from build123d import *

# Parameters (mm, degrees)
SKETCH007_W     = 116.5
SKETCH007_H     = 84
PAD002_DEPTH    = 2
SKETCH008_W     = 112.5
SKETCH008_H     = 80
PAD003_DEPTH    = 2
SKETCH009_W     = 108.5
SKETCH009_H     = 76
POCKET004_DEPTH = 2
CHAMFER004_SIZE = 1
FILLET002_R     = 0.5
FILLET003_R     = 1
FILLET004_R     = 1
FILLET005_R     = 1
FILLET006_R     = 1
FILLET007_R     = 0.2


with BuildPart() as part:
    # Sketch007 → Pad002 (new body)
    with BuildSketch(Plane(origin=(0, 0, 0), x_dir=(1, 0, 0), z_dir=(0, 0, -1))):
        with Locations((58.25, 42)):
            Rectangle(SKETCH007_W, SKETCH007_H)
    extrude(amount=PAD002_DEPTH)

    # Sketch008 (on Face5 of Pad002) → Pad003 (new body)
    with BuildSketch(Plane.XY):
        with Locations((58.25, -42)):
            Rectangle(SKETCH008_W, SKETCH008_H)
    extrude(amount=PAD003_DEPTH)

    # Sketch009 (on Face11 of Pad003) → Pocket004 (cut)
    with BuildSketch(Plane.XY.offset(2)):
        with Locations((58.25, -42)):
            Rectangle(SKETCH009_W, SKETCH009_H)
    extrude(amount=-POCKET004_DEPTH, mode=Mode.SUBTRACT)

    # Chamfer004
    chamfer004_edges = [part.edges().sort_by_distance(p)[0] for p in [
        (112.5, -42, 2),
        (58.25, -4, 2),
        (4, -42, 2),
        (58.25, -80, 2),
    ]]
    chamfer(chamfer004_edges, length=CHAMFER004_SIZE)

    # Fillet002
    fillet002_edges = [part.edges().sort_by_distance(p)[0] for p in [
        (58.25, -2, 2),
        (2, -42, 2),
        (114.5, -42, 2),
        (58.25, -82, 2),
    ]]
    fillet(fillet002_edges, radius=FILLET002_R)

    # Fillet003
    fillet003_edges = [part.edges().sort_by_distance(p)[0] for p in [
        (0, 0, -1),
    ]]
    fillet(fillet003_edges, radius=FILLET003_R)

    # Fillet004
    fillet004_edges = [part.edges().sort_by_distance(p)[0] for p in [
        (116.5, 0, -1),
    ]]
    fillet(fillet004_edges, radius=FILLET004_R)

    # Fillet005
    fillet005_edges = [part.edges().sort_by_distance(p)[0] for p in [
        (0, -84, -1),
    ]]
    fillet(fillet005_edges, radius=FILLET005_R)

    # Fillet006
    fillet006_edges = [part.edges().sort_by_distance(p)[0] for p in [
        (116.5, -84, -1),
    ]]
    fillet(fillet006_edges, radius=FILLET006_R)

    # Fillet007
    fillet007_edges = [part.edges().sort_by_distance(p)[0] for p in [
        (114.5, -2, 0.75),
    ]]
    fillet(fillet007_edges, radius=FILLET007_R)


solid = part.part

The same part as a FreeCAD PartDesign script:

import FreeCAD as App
import Part
import Sketcher

V = App.Vector
Q = App.Units.Quantity


def edges_at(feature, points):
    """Names of the edges that pass closest to the given points."""
    edges = feature.Shape.Edges
    near = lambda p: min(range(len(edges)), key=lambda i: edges[i].distToShape(Part.Vertex(*p))[0])
    return sorted({f"Edge{near(p) + 1}" for p in points})

doc = App.newDocument("Part")
body = doc.addObject("PartDesign::Body", "Body")

# Sketch on XY plane
sketch1 = doc.addObject("Sketcher::SketchObject", "Sketch")
body.addObject(sketch1)
sketch1.AttachmentSupport = (doc.XY_Plane, [""])
sketch1.MapMode = "FlatFace"
sketch1.addGeometry([
    Part.LineSegment(V(0, -84, 0), V(0, 0, 0)),
    Part.LineSegment(V(0, 0, 0), V(116.5, 0, 0)),
    Part.LineSegment(V(116.5, 0, 0), V(116.5, -84, 0)),
    Part.LineSegment(V(116.5, -84, 0), V(0, -84, 0)),
], False)
sketch1.addConstraint([
    Sketcher.Constraint("Coincident", 0, 2, 1, 1),
    Sketcher.Constraint("Coincident", 1, 2, 2, 1),
    Sketcher.Constraint("Coincident", 2, 2, 3, 1),
    Sketcher.Constraint("Coincident", 3, 2, 0, 1),
    Sketcher.Constraint("Vertical", 0),
    Sketcher.Constraint("Horizontal", 1),
    Sketcher.Constraint("Vertical", 2),
    Sketcher.Constraint("Horizontal", 3),
    Sketcher.Constraint("Coincident", 0, 2, -1, 1),
    Sketcher.Constraint("DistanceY", 0, 1, 0, 2, Q("84 mm")),
    Sketcher.Constraint("DistanceX", 1, 1, 1, 2, Q("116.5 mm")),
])
pad1 = doc.addObject("PartDesign::Pad", "Pad")
body.addObject(pad1)
pad1.Profile = sketch1
pad1.Length = 2
pad1.Reversed = True

# Sketch on XY plane
sketch2 = doc.addObject("Sketcher::SketchObject", "Sketch001")
body.addObject(sketch2)
sketch2.AttachmentSupport = (doc.XY_Plane, [""])
sketch2.MapMode = "FlatFace"
sketch2.addGeometry([
    Part.LineSegment(V(2, -2, 0), V(2, -82, 0)),
    Part.LineSegment(V(2, -82, 0), V(114.5, -82, 0)),
    Part.LineSegment(V(114.5, -82, 0), V(114.5, -2, 0)),
    Part.LineSegment(V(114.5, -2, 0), V(2, -2, 0)),
], False)
sketch2.addConstraint([
    Sketcher.Constraint("Coincident", 0, 2, 1, 1),
    Sketcher.Constraint("Coincident", 1, 2, 2, 1),
    Sketcher.Constraint("Coincident", 2, 2, 3, 1),
    Sketcher.Constraint("Coincident", 3, 2, 0, 1),
    Sketcher.Constraint("Vertical", 0),
    Sketcher.Constraint("Horizontal", 1),
    Sketcher.Constraint("Vertical", 2),
    Sketcher.Constraint("Horizontal", 3),
    Sketcher.Constraint("DistanceY", 0, 2, 0, 1, Q("80 mm")),
    Sketcher.Constraint("DistanceX", 1, 1, 1, 2, Q("112.5 mm")),
    Sketcher.Constraint("DistanceX", -1, 1, 0, 2, Q("2 mm")),
    Sketcher.Constraint("DistanceY", 0, 2, -1, 1, Q("82 mm")),
])
pad2 = doc.addObject("PartDesign::Pad", "Pad001")
body.addObject(pad2)
pad2.Profile = sketch2
pad2.Length = 2

# Sketch on XY plane
sketch3 = doc.addObject("Sketcher::SketchObject", "Sketch002")
body.addObject(sketch3)
sketch3.AttachmentSupport = (doc.XY_Plane, [""])
sketch3.MapMode = "FlatFace"
sketch3.AttachmentOffset = App.Placement(V(0, 0, 2), App.Rotation())
sketch3.addGeometry([
    Part.LineSegment(V(4, -4, 0), V(4, -80, 0)),
    Part.LineSegment(V(4, -80, 0), V(112.5, -80, 0)),
    Part.LineSegment(V(112.5, -80, 0), V(112.5, -4, 0)),
    Part.LineSegment(V(112.5, -4, 0), V(4, -4, 0)),
], False)
sketch3.addConstraint([
    Sketcher.Constraint("Coincident", 0, 2, 1, 1),
    Sketcher.Constraint("Coincident", 1, 2, 2, 1),
    Sketcher.Constraint("Coincident", 2, 2, 3, 1),
    Sketcher.Constraint("Coincident", 3, 2, 0, 1),
    Sketcher.Constraint("Vertical", 0),
    Sketcher.Constraint("Horizontal", 1),
    Sketcher.Constraint("Vertical", 2),
    Sketcher.Constraint("Horizontal", 3),
    Sketcher.Constraint("DistanceY", 0, 2, 0, 1, Q("76 mm")),
    Sketcher.Constraint("DistanceX", 1, 1, 1, 2, Q("108.5 mm")),
    Sketcher.Constraint("DistanceX", -1, 1, 0, 2, Q("4 mm")),
    Sketcher.Constraint("DistanceY", 0, 2, -1, 1, Q("80 mm")),
])
pocket1 = doc.addObject("PartDesign::Pocket", "Pocket")
body.addObject(pocket1)
pocket1.Profile = sketch3
pocket1.Length = 2
doc.recompute()

chamfer = doc.addObject("PartDesign::Chamfer", "Chamfer")
body.addObject(chamfer)
chamfer.Base = (pocket1, edges_at(pocket1, [
    (112.5, -42, 2),
    (58.25, -4, 2),
    (4, -42, 2),
    (58.25, -80, 2),
]))
chamfer.Size = 1
doc.recompute()

fillet = doc.addObject("PartDesign::Fillet", "Fillet")
body.addObject(fillet)
fillet.Base = (chamfer, edges_at(chamfer, [
    (58.25, -2, 2),
    (2, -42, 2),
    (114.5, -42, 2),
    (58.25, -82, 2),
]))
fillet.Radius = 0.5
doc.recompute()

fillet2 = doc.addObject("PartDesign::Fillet", "Fillet001")
body.addObject(fillet2)
fillet2.Base = (fillet, edges_at(fillet, [(0, 0, -1)]))
fillet2.Radius = 1
doc.recompute()

fillet3 = doc.addObject("PartDesign::Fillet", "Fillet002")
body.addObject(fillet3)
fillet3.Base = (fillet2, edges_at(fillet2, [(116.5, 0, -1)]))
fillet3.Radius = 1
doc.recompute()

fillet4 = doc.addObject("PartDesign::Fillet", "Fillet003")
body.addObject(fillet4)
fillet4.Base = (fillet3, edges_at(fillet3, [(0, -84, -1)]))
fillet4.Radius = 1
doc.recompute()

fillet5 = doc.addObject("PartDesign::Fillet", "Fillet004")
body.addObject(fillet5)
fillet5.Base = (fillet4, edges_at(fillet4, [(116.5, -84, -1)]))
fillet5.Radius = 1
doc.recompute()

fillet6 = doc.addObject("PartDesign::Fillet", "Fillet005")
body.addObject(fillet6)
fillet6.Base = (fillet5, edges_at(fillet5, [(114.5, -2, 0.75)]))
fillet6.Radius = 0.2

doc.recompute()
